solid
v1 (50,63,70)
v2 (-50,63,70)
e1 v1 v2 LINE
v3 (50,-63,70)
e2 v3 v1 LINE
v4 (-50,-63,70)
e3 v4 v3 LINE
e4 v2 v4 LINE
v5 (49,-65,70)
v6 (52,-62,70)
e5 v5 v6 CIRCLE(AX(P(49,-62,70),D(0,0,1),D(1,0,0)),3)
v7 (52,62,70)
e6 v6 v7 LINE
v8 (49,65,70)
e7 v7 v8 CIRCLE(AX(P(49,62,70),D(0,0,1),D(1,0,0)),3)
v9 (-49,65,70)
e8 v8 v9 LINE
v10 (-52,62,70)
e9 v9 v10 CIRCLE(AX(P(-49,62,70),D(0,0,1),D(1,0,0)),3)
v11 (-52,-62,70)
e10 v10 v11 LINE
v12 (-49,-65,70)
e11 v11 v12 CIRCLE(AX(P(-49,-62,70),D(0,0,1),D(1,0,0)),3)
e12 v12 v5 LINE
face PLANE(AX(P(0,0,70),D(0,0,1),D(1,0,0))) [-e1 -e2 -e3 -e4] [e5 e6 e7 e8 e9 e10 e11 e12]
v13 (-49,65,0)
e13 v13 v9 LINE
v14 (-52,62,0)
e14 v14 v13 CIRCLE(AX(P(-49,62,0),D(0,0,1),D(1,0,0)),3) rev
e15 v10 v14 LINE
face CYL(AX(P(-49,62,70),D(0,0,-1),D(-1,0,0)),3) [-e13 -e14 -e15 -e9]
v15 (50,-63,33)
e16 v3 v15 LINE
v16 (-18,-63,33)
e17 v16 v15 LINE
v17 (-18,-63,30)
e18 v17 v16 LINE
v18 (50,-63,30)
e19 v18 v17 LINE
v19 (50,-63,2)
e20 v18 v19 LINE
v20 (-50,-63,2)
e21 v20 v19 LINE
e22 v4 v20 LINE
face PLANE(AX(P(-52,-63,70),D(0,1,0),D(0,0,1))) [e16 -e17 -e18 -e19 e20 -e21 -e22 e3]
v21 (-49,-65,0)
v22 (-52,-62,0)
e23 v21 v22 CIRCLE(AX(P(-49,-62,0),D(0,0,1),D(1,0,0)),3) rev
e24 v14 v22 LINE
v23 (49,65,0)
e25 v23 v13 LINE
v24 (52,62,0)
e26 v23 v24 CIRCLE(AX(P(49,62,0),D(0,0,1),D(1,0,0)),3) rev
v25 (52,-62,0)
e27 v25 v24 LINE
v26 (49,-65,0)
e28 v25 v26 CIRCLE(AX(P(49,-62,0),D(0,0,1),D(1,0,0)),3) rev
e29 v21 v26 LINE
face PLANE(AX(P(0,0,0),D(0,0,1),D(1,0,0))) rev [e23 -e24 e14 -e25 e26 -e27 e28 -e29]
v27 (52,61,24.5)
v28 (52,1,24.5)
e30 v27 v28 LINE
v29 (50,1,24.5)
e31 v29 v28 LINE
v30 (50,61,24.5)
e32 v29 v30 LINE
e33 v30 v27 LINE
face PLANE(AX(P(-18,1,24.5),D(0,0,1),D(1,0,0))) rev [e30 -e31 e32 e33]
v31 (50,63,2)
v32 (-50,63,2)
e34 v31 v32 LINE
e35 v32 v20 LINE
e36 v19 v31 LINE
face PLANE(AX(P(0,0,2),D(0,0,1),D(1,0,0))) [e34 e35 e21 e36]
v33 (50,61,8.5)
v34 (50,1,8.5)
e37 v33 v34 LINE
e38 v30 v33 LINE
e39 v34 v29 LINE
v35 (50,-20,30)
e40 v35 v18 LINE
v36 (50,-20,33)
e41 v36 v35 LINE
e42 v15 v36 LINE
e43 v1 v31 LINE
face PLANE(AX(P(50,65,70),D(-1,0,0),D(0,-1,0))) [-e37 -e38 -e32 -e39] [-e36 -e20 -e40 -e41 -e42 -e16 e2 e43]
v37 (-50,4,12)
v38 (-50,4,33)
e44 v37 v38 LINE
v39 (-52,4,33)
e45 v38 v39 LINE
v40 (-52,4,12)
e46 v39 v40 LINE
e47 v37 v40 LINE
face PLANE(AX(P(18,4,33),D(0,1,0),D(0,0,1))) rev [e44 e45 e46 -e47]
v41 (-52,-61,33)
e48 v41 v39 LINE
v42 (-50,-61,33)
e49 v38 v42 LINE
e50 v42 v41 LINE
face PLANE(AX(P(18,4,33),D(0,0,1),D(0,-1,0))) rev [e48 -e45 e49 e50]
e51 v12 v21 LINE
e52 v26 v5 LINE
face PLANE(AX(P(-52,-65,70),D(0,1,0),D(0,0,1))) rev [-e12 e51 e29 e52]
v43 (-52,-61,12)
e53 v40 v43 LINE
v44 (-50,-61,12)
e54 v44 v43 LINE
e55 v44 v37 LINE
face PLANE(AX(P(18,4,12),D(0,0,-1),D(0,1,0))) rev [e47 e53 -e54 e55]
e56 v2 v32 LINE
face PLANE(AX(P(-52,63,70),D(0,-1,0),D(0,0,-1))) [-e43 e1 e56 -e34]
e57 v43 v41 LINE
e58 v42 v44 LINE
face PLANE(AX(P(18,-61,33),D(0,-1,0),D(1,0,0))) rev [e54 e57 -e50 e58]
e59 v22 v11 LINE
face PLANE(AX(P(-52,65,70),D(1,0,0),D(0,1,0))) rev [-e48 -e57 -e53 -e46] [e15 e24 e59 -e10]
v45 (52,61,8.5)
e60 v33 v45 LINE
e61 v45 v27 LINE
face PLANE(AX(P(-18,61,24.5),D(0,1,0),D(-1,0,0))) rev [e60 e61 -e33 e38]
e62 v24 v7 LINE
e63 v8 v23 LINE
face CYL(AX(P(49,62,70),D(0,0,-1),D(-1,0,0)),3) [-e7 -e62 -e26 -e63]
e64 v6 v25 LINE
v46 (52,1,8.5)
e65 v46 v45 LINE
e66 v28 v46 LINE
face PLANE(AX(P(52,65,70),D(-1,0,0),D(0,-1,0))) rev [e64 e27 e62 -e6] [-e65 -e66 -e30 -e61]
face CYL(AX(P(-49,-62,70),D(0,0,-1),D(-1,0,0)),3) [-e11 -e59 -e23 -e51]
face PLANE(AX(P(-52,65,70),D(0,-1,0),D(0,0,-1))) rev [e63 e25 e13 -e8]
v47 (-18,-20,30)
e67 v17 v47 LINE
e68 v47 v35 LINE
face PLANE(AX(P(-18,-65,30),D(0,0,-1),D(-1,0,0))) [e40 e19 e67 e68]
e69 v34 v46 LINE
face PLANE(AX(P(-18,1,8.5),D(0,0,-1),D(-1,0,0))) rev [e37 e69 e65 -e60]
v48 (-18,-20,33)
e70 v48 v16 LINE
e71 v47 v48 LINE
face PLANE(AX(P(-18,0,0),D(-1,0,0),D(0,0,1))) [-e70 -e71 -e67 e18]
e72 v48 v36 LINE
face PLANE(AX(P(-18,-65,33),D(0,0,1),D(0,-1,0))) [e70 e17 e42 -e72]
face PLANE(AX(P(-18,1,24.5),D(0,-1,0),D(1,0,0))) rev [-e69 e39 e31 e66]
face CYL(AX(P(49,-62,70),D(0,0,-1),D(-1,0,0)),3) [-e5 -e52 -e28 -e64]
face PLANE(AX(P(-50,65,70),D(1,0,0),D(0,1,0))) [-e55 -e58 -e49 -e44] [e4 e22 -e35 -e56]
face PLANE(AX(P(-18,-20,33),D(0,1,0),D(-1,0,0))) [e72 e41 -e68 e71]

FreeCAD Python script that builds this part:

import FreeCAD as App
import Part
import Sketcher

V = App.Vector
Q = App.Units.Quantity


def edges_at(feature, points):
    """Names of the edges that pass closest to the given points."""
    edges = feature.Shape.Edges
    near = lambda p: min(range(len(edges)), key=lambda i: edges[i].distToShape(Part.Vertex(*p))[0])
    return sorted({f"Edge{near(p) + 1}" for p in points})


def faces_at(feature, points):
    """Names of the faces that lie closest to the given points."""
    faces = feature.Shape.Faces
    near = lambda p: min(range(len(faces)), key=lambda i: faces[i].distToShape(Part.Vertex(*p))[0])
    return sorted({f"Face{near(p) + 1}" for p in points})

doc = App.newDocument("Part")
body = doc.addObject("PartDesign::Body", "Body")

# Sketch on XY plane
sketch1 = body.newObject("Sketcher::SketchObject", "Sketch")
sketch1.AttachmentSupport = (doc.getObject("XY_Plane"), [""])
sketch1.MapMode = "FlatFace"
sketch1.addGeometry(Part.LineSegment(V(-52, 65, 0), V(-52, -65, 0)), False)
sketch1.addGeometry(Part.LineSegment(V(-52, -65, 0), V(52, -65, 0)), False)
sketch1.addGeometry(Part.LineSegment(V(52, -65, 0), V(52, 65, 0)), False)
sketch1.addGeometry(Part.LineSegment(V(52, 65, 0), V(-52, 65, 0)), False)
sketch1.addConstraint(Sketcher.Constraint("Coincident", 0, 2, 1, 1))
sketch1.addConstraint(Sketcher.Constraint("Coincident", 1, 2, 2, 1))
sketch1.addConstraint(Sketcher.Constraint("Coincident", 2, 2, 3, 1))
sketch1.addConstraint(Sketcher.Constraint("Coincident", 3, 2, 0, 1))
sketch1.addConstraint(Sketcher.Constraint("Vertical", 0))
sketch1.addConstraint(Sketcher.Constraint("Horizontal", 1))
sketch1.addConstraint(Sketcher.Constraint("Vertical", 2))
sketch1.addConstraint(Sketcher.Constraint("Horizontal", 3))
sketch1.addConstraint(Sketcher.Constraint("Symmetric", 0, 2, 2, 2, -1, 1))
sketch1.addConstraint(Sketcher.Constraint("DistanceX", 1, 1, 1, 2, Q("104 mm")))
sketch1.addConstraint(Sketcher.Constraint("DistanceY", 0, 2, 0, 1, Q("130 mm")))
pad1 = body.newObject("PartDesign::Pad", "Pad")
pad1.Profile = sketch1
pad1.Length = 70
doc.recompute()

thickness = body.newObject("PartDesign::Thickness", "Thickness")
thickness.Base = (pad1, faces_at(pad1, [(0, 0, 70)]))
thickness.Value = 2
thickness.Reversed = True
thickness.Join = "Intersection"

# Sketch on YZ plane
sketch2 = body.newObject("Sketcher::SketchObject", "Sketch001")
sketch2.AttachmentSupport = (doc.getObject("YZ_Plane"), [""])
sketch2.MapMode = "FlatFace"
sketch2.AttachmentOffset = App.Placement(V(0, 0, -52), App.Rotation())
sketch2.addGeometry(Part.LineSegment(V(4, 12, 0), V(-61, 12, 0)), False)
sketch2.addGeometry(Part.LineSegment(V(-61, 12, 0), V(-61, 33, 0)), False)
sketch2.addGeometry(Part.LineSegment(V(-61, 33, 0), V(4, 33, 0)), False)
sketch2.addGeometry(Part.LineSegment(V(4, 33, 0), V(4, 12, 0)), False)
sketch2.addConstraint(Sketcher.Constraint("Coincident", 0, 2, 1, 1))
sketch2.addConstraint(Sketcher.Constraint("Coincident", 1, 2, 2, 1))
sketch2.addConstraint(Sketcher.Constraint("Coincident", 2, 2, 3, 1))
sketch2.addConstraint(Sketcher.Constraint("Coincident", 3, 2, 0, 1))
sketch2.addConstraint(Sketcher.Constraint("Horizontal", 0))
sketch2.addConstraint(Sketcher.Constraint("Vertical", 1))
sketch2.addConstraint(Sketcher.Constraint("Horizontal", 2))
sketch2.addConstraint(Sketcher.Constraint("Vertical", 3))
sketch2.addConstraint(Sketcher.Constraint("DistanceX", 0, 2, 0, 1, Q("65 mm")))
sketch2.addConstraint(Sketcher.Constraint("DistanceY", 1, 1, 1, 2, Q("21 mm")))
sketch2.addConstraint(Sketcher.Constraint("DistanceX", 0, 2, -1, 1, Q("61 mm")))
sketch2.addConstraint(Sketcher.Constraint("DistanceY", -1, 1, 0, 2, Q("12 mm")))
pocket1 = body.newObject("PartDesign::Pocket", "Pocket")
pocket1.Profile = sketch2
pocket1.Length = 70
pocket1.Reversed = True

# Sketch on YZ plane
sketch3 = body.newObject("Sketcher::SketchObject", "Sketch002")
sketch3.AttachmentSupport = (doc.getObject("YZ_Plane"), [""])
sketch3.MapMode = "FlatFace"
sketch3.AttachmentOffset = App.Placement(V(0, 0, 52), App.Rotation())
sketch3.addGeometry(Part.LineSegment(V(61, 24, 0), V(1, 24, 0)), False)
sketch3.addGeometry(Part.LineSegment(V(1, 24, 0), V(1, 8, 0)), False)
sketch3.addGeometry(Part.LineSegment(V(1, 8, 0), V(61, 8, 0)), False)
sketch3.addGeometry(Part.LineSegment(V(61, 8, 0), V(61, 24, 0)), False)
sketch3.addConstraint(Sketcher.Constraint("Coincident", 0, 2, 1, 1))
sketch3.addConstraint(Sketcher.Constraint("Coincident", 1, 2, 2, 1))
sketch3.addConstraint(Sketcher.Constraint("Coincident", 2, 2, 3, 1))
sketch3.addConstraint(Sketcher.Constraint("Coincident", 3, 2, 0, 1))
sketch3.addConstraint(Sketcher.Constraint("Horizontal", 0))
sketch3.addConstraint(Sketcher.Constraint("Vertical", 1))
sketch3.addConstraint(Sketcher.Constraint("Horizontal", 2))
sketch3.addConstraint(Sketcher.Constraint("Vertical", 3))
sketch3.addConstraint(Sketcher.Constraint("DistanceX", 0, 2, 0, 1, Q("60 mm")))
sketch3.addConstraint(Sketcher.Constraint("DistanceY", 1, 2, 1, 1, Q("16 mm")))
sketch3.addConstraint(Sketcher.Constraint("DistanceX", -1, 1, 0, 2, Q("1 mm")))
sketch3.addConstraint(Sketcher.Constraint("DistanceY", -1, 1, 0, 2, Q("24.5 mm")))
pocket2 = body.newObject("PartDesign::Pocket", "Pocket001")
pocket2.Profile = sketch3
pocket2.Length = 70

# Sketch on YZ plane
sketch4 = body.newObject("Sketcher::SketchObject", "Sketch003")
sketch4.AttachmentSupport = (doc.getObject("YZ_Plane"), [""])
sketch4.MapMode = "FlatFace"
sketch4.AttachmentOffset = App.Placement(V(0, 0, 52), App.Rotation())
sketch4.addGeometry(Part.LineSegment(V(-20, 33, 0), V(-65, 33, 0)), False)
sketch4.addGeometry(Part.LineSegment(V(-65, 33, 0), V(-65, 30, 0)), False)
sketch4.addGeometry(Part.LineSegment(V(-65, 30, 0), V(-20, 30, 0)), False)
sketch4.addGeometry(Part.LineSegment(V(-20, 30, 0), V(-20, 33, 0)), False)
sketch4.addConstraint(Sketcher.Constraint("Coincident", 0, 2, 1, 1))
sketch4.addConstraint(Sketcher.Constraint("Coincident", 1, 2, 2, 1))
sketch4.addConstraint(Sketcher.Constraint("Coincident", 2, 2, 3, 1))
sketch4.addConstraint(Sketcher.Constraint("Coincident", 3, 2, 0, 1))
sketch4.addConstraint(Sketcher.Constraint("Horizontal", 0))
sketch4.addConstraint(Sketcher.Constraint("Vertical", 1))
sketch4.addConstraint(Sketcher.Constraint("Horizontal", 2))
sketch4.addConstraint(Sketcher.Constraint("Vertical", 3))
sketch4.addConstraint(Sketcher.Constraint("DistanceX", 0, 2, 0, 1, Q("45 mm")))
sketch4.addConstraint(Sketcher.Constraint("DistanceY", 1, 2, 1, 1, Q("3 mm")))
sketch4.addConstraint(Sketcher.Constraint("DistanceX", 0, 2, -1, 1, Q("65 mm")))
sketch4.addConstraint(Sketcher.Constraint("DistanceY", -1, 1, 0, 2, Q("33 mm")))
pad2 = body.newObject("PartDesign::Pad", "Pad001")
pad2.Profile = sketch4
pad2.Length = 70
pad2.Reversed = True
doc.recompute()

fillet = body.newObject("PartDesign::Fillet", "Fillet")
fillet.Base = (pad2, edges_at(pad2, [
    (52, -65, 35),
    (-52, -65, 35),
    (-52, 65, 35),
    (52, 65, 35),
]))
fillet.Radius = 3

doc.recompute()
